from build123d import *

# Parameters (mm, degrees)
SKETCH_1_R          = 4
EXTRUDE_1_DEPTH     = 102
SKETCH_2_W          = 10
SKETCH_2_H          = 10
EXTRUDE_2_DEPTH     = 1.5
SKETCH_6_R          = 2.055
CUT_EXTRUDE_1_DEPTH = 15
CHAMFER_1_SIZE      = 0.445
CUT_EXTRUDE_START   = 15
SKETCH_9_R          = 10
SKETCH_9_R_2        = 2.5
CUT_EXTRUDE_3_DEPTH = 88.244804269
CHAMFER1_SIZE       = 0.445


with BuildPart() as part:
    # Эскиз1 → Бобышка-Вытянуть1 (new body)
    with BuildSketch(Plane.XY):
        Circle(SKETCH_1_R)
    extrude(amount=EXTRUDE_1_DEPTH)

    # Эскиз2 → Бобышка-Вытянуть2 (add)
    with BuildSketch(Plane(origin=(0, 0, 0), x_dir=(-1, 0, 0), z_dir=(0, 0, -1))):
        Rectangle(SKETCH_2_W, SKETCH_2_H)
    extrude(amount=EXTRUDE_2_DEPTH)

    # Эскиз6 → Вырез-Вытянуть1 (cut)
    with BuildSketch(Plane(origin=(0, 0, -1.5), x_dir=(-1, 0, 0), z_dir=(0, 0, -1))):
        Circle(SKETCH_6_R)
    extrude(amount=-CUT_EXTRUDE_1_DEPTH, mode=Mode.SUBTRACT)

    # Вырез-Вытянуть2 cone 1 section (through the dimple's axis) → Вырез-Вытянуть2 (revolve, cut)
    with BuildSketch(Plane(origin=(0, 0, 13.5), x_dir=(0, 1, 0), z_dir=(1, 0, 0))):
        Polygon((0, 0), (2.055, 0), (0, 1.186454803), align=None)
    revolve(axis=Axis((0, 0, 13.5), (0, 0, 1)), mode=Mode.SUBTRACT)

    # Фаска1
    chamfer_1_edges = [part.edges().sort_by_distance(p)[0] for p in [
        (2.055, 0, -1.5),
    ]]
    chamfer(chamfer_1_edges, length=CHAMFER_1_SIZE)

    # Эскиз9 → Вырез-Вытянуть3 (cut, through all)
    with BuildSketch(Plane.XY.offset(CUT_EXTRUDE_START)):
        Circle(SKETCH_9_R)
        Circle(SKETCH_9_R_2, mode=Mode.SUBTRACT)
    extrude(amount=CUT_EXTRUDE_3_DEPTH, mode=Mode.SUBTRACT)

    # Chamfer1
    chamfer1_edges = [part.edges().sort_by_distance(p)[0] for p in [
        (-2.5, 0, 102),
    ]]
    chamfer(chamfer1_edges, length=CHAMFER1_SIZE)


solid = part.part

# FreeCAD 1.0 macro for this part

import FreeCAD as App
import Part
import Sketcher

V = App.Vector
Q = App.Units.Quantity


def edges_at(feature, points):
    """Names of the edges that pass closest to the given points."""
    edges = feature.Shape.Edges
    near = lambda p: min(range(len(edges)), key=lambda i: edges[i].distToShape(Part.Vertex(*p))[0])
    return sorted({f"Edge{near(p) + 1}" for p in points})


def add_polygon(sketch, points):
    """Adds a closed chain of lines whose ends are joined by coincident constraints."""
    first, n = sketch.GeometryCount, len(points)
    for a, b in zip(points, points[1:] + points[:1]):
        sketch.addGeometry(Part.LineSegment(App.Vector(*a, 0), App.Vector(*b, 0)), False)
    for i in range(n):
        sketch.addConstraint(Sketcher.Constraint("Coincident", first + i, 2, first + (i + 1) % n, 1))

doc = App.newDocument("Part")
params = doc.addObject("Spreadsheet::Sheet", "Params")
for row, (alias, value) in enumerate([
    ("sketch1_diameter", "8 mm"),
    ("pad1_length", "102 mm"),
    ("sketch2_width", "10 mm"),
    ("pad2_length", "1.5 mm"),
    ("sketch3_diameter", "4.11 mm"),
    ("pocket1_length", "15 mm"),
    ("groove_angle", "360 deg"),
    ("chamfer_size", "0.445 mm"),
    ("sketch5_diameter", "20 mm"),
    ("sketch5_diameter2", "5 mm"),
    ("chamfer2_size", "0.445 mm"),
], start=1):
    params.set(f"A{row}", alias)
    params.set(f"B{row}", "=" + value)
    params.setAlias(f"B{row}", alias)

body = doc.addObject("PartDesign::Body", "Body")

sketch1 = body.newObject("Sketcher::SketchObject", "Sketch")
sketch1.AttachmentSupport = (doc.getObject("XY_Plane"), [""])
sketch1.MapMode = "FlatFace"
sketch1.addGeometry(Part.Circle(V(0, 0, 0), V(0, 0, 1), 4), False)
sketch1.addConstraint([
    Sketcher.Constraint("Coincident", 0, 3, -1, 1),
    Sketcher.Constraint("Diameter", 0, Q("8 mm")),
])
sketch1.setExpression("Constraints[1]", "Params.sketch1_diameter")
pad1 = body.newObject("PartDesign::Pad", "Pad")
pad1.Profile = sketch1
pad1.setExpression("Length", "Params.pad1_length")

sketch2 = body.newObject("Sketcher::SketchObject", "Sketch001")
sketch2.AttachmentSupport = (doc.getObject("XY_Plane"), [""])
sketch2.MapMode = "FlatFace"
add_polygon(sketch2, [(5, 5), (5, -5), (-5, -5), (-5, 5)])
sketch2.addConstraint([
    Sketcher.Constraint("Vertical", 0),
    Sketcher.Constraint("Horizontal", 1),
    Sketcher.Constraint("Vertical", 2),
    Sketcher.Constraint("Horizontal", 3),
    Sketcher.Constraint("Symmetric", 0, 2, 2, 2, -1, 1),
    Sketcher.Constraint("Equal", 3, 0),
    Sketcher.Constraint("DistanceX", 1, 2, 1, 1, Q("10 mm")),
])
sketch2.setExpression("Constraints[10]", "Params.sketch2_width")
pad2 = body.newObject("PartDesign::Pad", "Pad001")
pad2.Profile = sketch2
pad2.setExpression("Length", "Params.pad2_length")
pad2.Reversed = True

sketch3 = body.newObject("Sketcher::SketchObject", "Sketch002")
sketch3.AttachmentSupport = (doc.getObject("XY_Plane"), [""])
sketch3.MapMode = "FlatFace"
sketch3.AttachmentOffset = App.Placement(V(0, 0, -1.5), App.Rotation())
sketch3.addGeometry(Part.Circle(V(0, 0, 0), V(0, 0, 1), 2.1), False)
sketch3.addConstraint([
    Sketcher.Constraint("Coincident", 0, 3, -1, 1),
    Sketcher.Constraint("Diameter", 0, Q("4.11 mm")),
])
sketch3.setExpression("Constraints[1]", "Params.sketch3_diameter")
pocket1 = body.newObject("PartDesign::Pocket", "Pocket")
pocket1.Profile = sketch3
pocket1.setExpression("Length", "Params.pocket1_length")
pocket1.Reversed = True

sketch4 = body.newObject("Sketcher::SketchObject", "Sketch003")
sketch4.AttachmentSupport = (doc.getObject("YZ_Plane"), [""])
sketch4.MapMode = "FlatFace"
add_polygon(sketch4, [(0, 13.5), (2.1, 13.5), (0, 14.7)])
sketch4.addConstraint([
    Sketcher.Constraint("Horizontal", 0),
    Sketcher.Constraint("Vertical", 2),
    Sketcher.Constraint("PointOnObject", 1, 2, -2),
    Sketcher.Constraint("Angle", 1, Q("150 deg")),
    Sketcher.Constraint("DistanceY", -1, 1, 0, 2, Q("13.5 mm")),
    Sketcher.Constraint("DistanceX", 0, 1, 0, 2, Q("2.055 mm")),
])
groove = body.newObject("PartDesign::Groove", "Groove")
groove.Profile = sketch4
groove.ReferenceAxis = (sketch4, ["V_Axis"])
groove.setExpression("Angle", "Params.groove_angle")
doc.recompute()

chamfer = body.newObject("PartDesign::Chamfer", "Chamfer")
chamfer.Base = (groove, edges_at(groove, [(2.055, 0, -1.5)]))
chamfer.setExpression("Size", "Params.chamfer_size")

sketch5 = body.newObject("Sketcher::SketchObject", "Sketch004")
sketch5.AttachmentSupport = (doc.getObject("XY_Plane"), [""])
sketch5.MapMode = "FlatFace"
sketch5.AttachmentOffset = App.Placement(V(0, 0, 15), App.Rotation())
sketch5.addGeometry([
    Part.Circle(V(0, 0, 0), V(0, 0, 1), 10),
    Part.Circle(V(0, 0, 0), V(0, 0, 1), 2.5),
], False)
sketch5.addConstraint([
    Sketcher.Constraint("Coincident", 0, 3, -1, 1),
    Sketcher.Constraint("Coincident", 1, 3, -1, 1),
    Sketcher.Constraint("Diameter", 0, Q("20 mm")),
    Sketcher.Constraint("Diameter", 1, Q("5 mm")),
])
sketch5.setExpression("Constraints[2]", "Params.sketch5_diameter")
sketch5.setExpression("Constraints[3]", "Params.sketch5_diameter2")
pocket2 = body.newObject("PartDesign::Pocket", "Pocket001")
pocket2.Profile = sketch5
pocket2.Type = "ThroughAll"
pocket2.Reversed = True
doc.recompute()

chamfer2 = body.newObject("PartDesign::Chamfer", "Chamfer001")
chamfer2.Base = (pocket2, edges_at(pocket2, [(-2.5, 0, 102)]))
chamfer2.setExpression("Size", "Params.chamfer2_size")

doc.recompute()
